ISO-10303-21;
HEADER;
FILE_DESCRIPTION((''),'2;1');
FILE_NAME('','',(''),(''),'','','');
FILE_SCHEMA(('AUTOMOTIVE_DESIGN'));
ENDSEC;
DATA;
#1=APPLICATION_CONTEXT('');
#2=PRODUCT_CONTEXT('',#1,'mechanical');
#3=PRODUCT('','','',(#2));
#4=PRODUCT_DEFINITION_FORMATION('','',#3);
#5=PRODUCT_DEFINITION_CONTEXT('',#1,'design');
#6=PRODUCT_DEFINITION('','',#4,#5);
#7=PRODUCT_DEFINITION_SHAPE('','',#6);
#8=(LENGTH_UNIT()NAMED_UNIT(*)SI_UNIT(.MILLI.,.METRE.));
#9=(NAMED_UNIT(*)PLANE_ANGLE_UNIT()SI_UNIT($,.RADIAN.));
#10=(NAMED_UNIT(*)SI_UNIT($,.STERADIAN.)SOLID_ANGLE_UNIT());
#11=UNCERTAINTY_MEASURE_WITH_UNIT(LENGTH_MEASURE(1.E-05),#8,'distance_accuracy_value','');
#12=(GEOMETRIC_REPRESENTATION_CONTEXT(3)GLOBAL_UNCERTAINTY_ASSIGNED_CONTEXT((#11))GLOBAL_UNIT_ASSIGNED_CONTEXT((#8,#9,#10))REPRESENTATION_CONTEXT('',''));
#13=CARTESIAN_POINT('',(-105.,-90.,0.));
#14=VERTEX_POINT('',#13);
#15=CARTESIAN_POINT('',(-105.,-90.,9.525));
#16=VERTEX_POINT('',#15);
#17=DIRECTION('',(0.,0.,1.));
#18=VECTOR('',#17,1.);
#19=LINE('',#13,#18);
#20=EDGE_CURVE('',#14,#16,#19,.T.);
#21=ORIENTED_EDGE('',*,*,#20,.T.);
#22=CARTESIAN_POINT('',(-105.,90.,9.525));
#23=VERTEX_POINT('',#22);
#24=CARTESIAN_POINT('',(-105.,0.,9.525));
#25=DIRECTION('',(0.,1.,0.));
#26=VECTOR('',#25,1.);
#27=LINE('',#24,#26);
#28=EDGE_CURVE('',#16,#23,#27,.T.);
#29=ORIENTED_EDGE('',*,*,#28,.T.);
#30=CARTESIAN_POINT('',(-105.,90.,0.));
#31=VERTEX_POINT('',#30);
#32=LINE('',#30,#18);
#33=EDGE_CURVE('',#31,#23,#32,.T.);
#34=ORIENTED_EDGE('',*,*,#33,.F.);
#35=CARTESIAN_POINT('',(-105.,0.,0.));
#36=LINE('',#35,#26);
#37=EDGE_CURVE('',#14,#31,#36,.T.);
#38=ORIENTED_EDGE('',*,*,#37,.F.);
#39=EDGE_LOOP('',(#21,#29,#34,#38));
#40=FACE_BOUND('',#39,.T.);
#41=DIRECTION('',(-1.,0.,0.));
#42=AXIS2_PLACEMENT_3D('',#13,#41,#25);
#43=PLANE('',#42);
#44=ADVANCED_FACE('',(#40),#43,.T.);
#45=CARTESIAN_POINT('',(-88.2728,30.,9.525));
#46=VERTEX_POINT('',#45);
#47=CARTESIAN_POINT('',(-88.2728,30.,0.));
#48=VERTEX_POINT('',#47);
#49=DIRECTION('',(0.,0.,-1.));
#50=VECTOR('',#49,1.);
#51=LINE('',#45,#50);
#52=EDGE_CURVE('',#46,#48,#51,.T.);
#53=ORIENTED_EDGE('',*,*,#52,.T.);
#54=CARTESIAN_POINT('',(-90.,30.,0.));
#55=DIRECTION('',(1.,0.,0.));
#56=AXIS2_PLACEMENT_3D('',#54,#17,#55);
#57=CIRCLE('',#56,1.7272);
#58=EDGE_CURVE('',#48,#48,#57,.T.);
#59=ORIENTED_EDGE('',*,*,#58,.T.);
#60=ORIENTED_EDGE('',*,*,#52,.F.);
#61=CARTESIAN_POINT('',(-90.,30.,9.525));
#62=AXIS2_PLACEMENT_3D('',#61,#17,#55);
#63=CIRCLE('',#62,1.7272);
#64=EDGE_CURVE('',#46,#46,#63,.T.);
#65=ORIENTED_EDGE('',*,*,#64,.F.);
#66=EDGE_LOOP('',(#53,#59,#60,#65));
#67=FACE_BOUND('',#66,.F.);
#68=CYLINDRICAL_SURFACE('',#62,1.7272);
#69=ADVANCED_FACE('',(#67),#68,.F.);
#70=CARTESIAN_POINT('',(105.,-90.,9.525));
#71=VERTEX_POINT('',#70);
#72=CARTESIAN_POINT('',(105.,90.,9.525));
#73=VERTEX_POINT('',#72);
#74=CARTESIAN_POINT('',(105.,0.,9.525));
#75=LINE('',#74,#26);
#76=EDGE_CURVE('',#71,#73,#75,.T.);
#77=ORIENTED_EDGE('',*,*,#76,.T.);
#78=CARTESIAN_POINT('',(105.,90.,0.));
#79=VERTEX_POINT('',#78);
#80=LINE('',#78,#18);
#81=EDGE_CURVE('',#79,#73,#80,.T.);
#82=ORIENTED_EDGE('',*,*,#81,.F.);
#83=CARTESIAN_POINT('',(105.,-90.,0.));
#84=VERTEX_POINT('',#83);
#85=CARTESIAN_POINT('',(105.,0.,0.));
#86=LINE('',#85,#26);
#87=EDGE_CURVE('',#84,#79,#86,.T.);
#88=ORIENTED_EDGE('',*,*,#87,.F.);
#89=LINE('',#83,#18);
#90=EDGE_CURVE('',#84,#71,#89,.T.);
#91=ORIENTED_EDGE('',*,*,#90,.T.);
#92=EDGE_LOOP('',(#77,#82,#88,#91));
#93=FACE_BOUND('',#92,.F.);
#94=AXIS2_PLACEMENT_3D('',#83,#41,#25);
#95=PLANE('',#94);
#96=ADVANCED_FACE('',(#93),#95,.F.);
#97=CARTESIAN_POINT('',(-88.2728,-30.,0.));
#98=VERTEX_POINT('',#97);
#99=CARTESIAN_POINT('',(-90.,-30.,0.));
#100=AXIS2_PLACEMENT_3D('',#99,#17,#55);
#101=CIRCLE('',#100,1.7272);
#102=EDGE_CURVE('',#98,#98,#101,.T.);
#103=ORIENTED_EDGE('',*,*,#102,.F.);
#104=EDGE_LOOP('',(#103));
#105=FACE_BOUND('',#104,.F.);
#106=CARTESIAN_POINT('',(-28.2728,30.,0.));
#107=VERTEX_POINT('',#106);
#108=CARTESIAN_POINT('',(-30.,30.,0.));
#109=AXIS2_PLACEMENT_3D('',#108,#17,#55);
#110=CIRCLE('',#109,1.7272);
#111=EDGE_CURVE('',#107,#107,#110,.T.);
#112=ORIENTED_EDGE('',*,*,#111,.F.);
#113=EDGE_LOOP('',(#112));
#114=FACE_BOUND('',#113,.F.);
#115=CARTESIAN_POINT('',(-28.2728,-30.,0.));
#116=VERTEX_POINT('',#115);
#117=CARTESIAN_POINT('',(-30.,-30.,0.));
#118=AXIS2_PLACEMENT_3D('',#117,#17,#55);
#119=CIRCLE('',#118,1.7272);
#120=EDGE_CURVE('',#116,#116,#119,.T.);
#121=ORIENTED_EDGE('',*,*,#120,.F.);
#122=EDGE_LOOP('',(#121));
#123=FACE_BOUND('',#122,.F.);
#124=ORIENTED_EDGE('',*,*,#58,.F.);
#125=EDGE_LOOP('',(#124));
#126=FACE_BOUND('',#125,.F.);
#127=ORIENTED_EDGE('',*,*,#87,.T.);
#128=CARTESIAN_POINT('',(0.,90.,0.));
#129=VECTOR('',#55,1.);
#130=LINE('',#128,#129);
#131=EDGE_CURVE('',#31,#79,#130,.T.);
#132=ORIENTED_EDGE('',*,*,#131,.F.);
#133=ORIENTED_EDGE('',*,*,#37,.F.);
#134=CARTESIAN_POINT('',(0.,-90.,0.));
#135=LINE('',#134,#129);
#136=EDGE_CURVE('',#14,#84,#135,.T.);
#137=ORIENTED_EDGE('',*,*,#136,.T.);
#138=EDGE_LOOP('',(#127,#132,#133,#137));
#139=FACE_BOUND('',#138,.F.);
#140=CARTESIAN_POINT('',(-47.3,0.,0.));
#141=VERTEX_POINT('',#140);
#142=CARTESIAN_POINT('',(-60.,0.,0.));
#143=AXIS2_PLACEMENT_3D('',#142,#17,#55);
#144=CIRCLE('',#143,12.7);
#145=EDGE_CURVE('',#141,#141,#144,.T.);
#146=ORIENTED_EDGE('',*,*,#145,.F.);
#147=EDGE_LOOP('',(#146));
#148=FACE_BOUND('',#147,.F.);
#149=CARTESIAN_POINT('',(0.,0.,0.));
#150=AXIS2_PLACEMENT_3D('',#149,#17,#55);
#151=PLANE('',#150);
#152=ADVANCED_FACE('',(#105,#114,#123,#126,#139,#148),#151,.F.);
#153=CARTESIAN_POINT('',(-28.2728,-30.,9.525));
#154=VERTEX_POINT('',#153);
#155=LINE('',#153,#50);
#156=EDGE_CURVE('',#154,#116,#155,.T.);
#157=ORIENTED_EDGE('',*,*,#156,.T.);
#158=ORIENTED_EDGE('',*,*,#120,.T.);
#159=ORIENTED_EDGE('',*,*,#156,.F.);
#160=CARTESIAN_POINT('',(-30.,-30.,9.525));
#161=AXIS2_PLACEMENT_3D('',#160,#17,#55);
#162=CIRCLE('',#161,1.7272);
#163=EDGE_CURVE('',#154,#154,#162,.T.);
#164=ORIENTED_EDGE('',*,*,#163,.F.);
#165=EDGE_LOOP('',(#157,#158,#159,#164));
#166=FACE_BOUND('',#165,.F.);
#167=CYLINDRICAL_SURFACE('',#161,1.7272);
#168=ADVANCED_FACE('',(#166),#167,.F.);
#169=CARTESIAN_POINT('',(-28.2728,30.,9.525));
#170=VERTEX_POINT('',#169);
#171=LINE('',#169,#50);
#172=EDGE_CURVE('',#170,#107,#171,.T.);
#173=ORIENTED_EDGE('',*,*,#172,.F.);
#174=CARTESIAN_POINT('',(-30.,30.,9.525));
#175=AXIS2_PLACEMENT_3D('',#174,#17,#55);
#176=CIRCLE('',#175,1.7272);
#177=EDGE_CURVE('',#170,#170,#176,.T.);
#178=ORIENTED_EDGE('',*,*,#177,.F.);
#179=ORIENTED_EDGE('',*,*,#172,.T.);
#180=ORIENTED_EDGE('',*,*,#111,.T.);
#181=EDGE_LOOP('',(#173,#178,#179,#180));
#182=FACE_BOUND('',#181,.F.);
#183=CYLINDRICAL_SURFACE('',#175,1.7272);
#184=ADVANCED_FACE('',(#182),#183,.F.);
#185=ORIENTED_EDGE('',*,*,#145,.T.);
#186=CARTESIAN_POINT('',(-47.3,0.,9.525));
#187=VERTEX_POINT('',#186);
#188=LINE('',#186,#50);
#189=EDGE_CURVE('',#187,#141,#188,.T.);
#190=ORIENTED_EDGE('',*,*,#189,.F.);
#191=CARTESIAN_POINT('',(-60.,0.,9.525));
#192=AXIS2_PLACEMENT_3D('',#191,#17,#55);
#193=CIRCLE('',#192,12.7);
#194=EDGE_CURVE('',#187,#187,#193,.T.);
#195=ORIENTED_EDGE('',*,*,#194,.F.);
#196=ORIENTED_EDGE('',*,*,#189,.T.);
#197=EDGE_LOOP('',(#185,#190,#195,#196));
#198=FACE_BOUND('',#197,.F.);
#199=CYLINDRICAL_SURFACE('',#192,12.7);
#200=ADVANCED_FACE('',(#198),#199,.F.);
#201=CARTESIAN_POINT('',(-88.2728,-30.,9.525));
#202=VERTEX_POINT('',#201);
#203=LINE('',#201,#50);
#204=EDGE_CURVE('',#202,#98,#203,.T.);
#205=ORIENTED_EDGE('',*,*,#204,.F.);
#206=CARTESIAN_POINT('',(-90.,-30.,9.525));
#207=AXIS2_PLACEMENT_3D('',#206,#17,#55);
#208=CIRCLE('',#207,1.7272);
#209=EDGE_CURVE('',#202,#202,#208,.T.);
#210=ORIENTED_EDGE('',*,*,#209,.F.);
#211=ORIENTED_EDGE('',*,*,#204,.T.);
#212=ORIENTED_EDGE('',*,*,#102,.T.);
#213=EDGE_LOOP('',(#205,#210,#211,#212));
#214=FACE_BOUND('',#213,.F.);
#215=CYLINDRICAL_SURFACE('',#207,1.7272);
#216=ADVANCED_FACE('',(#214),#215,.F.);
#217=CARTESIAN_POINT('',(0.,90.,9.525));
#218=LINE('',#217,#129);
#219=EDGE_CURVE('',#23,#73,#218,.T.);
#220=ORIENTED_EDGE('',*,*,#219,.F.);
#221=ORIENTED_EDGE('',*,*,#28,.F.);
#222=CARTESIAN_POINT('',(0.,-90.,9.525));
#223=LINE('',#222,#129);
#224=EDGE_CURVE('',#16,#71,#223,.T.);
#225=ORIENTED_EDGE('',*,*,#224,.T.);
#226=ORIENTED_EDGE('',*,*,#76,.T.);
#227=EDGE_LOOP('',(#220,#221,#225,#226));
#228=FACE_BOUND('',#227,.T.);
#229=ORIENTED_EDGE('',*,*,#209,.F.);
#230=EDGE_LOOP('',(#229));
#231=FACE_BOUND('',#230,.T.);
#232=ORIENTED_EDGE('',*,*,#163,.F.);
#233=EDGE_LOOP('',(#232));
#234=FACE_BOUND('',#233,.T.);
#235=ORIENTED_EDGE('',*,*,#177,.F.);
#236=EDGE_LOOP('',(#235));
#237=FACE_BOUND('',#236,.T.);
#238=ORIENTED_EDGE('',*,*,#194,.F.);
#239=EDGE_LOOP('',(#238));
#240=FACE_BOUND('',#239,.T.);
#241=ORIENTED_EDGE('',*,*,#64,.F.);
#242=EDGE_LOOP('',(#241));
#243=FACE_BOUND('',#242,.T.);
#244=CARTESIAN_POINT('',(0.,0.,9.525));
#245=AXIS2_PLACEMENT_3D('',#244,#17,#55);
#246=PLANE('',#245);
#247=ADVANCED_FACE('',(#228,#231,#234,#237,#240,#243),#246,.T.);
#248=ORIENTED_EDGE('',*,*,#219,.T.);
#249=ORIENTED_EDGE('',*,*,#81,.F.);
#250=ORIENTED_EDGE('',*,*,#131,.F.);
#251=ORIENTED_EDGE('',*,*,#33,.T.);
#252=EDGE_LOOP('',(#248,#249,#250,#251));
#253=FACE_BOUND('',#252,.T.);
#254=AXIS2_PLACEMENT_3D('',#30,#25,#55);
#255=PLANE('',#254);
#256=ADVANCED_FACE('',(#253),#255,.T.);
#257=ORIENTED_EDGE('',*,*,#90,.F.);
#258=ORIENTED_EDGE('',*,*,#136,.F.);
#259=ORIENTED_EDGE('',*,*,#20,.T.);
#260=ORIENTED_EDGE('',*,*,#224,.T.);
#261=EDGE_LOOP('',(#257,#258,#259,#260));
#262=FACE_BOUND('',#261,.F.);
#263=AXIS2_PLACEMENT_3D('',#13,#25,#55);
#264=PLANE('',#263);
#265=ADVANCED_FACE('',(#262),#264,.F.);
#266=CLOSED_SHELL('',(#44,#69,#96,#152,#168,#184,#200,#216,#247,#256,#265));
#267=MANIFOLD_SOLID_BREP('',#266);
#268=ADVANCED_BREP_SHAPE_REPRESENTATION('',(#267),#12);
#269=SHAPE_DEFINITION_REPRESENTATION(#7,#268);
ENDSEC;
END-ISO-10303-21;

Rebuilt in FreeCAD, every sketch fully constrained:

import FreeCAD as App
import Part
import Sketcher
from FreeCAD import Vector
Q = App.Units.Quantity

doc = App.newDocument("Part")
body = doc.addObject("PartDesign::Body", "Body")

sketch1 = body.newObject("Sketcher::SketchObject", "Sketch")
sketch1.AttachmentSupport = (doc.getObject("XY_Plane"), [""])
sketch1.MapMode = "FlatFace"
sketch1.addGeometry(Part.LineSegment(Vector(-105, 90, 0), Vector(-105, -90, 0)), False)
sketch1.addGeometry(Part.LineSegment(Vector(-105, -90, 0), Vector(105, -90, 0)), False)
sketch1.addGeometry(Part.LineSegment(Vector(105, -90, 0), Vector(105, 90, 0)), False)
sketch1.addGeometry(Part.LineSegment(Vector(105, 90, 0), Vector(-105, 90, 0)), False)
sketch1.addConstraint(Sketcher.Constraint("Coincident", 0, 2, 1, 1))
sketch1.addConstraint(Sketcher.Constraint("Coincident", 1, 2, 2, 1))
sketch1.addConstraint(Sketcher.Constraint("Coincident", 2, 2, 3, 1))
sketch1.addConstraint(Sketcher.Constraint("Coincident", 3, 2, 0, 1))
sketch1.addConstraint(Sketcher.Constraint("Vertical", 0))
sketch1.addConstraint(Sketcher.Constraint("Horizontal", 1))
sketch1.addConstraint(Sketcher.Constraint("Vertical", 2))
sketch1.addConstraint(Sketcher.Constraint("Horizontal", 3))
sketch1.addConstraint(Sketcher.Constraint("Symmetric", 0, 2, 2, 2, -1, 1))
sketch1.addConstraint(Sketcher.Constraint("DistanceX", 1, 1, 1, 2, Q("210 mm")))
sketch1.addConstraint(Sketcher.Constraint("DistanceY", 0, 2, 0, 1, Q("180 mm")))
pad1 = body.newObject("PartDesign::Pad", "Pad")
pad1.Profile = sketch1
pad1.Length = Q("0.375 in")

sketch2 = body.newObject("Sketcher::SketchObject", "Sketch001")
sketch2.AttachmentSupport = (doc.getObject("XY_Plane"), [""])
sketch2.MapMode = "FlatFace"
sketch2.AttachmentOffset = App.Placement(Vector(0, 0, 0.375 * 25.4), App.Rotation())
sketch2.addGeometry(Part.Circle(Vector(-60, 0, 0), Vector(0, 0, 1), 12.7), False)
sketch2.addGeometry(Part.Circle(Vector(-30, 30, 0), Vector(0, 0, 1), 1.7), False)
sketch2.addGeometry(Part.Circle(Vector(-30, -30, 0), Vector(0, 0, 1), 1.7), False)
sketch2.addGeometry(Part.Circle(Vector(-90, -30, 0), Vector(0, 0, 1), 1.7), False)
sketch2.addGeometry(Part.Circle(Vector(-90, 30, 0), Vector(0, 0, 1), 1.7), False)
sketch2.addConstraint(Sketcher.Constraint("Equal", 1, 2))
sketch2.addConstraint(Sketcher.Constraint("Equal", 2, 3))
sketch2.addConstraint(Sketcher.Constraint("Equal", 3, 4))
sketch2.addConstraint(Sketcher.Constraint("Symmetric", 1, 3, 2, 3, -1))
sketch2.addConstraint(Sketcher.Constraint("Symmetric", 3, 3, 4, 3, -1))
sketch2.addConstraint(Sketcher.Constraint("PointOnObject", 0, 3, -1))
sketch2.addConstraint(Sketcher.Constraint("Horizontal", 2, 3, 3, 3))
sketch2.addConstraint(Sketcher.Constraint("Diameter", 0, Q("1 in")))
sketch2.addConstraint(Sketcher.Constraint("Diameter", 1, Q("0.136 in")))
sketch2.addConstraint(Sketcher.Constraint("DistanceX", 0, 3, -1, 1, Q("60 mm")))
sketch2.addConstraint(Sketcher.Constraint("DistanceX", 1, 3, -1, 1, Q("30 mm")))
sketch2.addConstraint(Sketcher.Constraint("DistanceY", -1, 1, 1, 3, Q("30 mm")))
sketch2.addConstraint(Sketcher.Constraint("DistanceX", 3, 3, -1, 1, Q("90 mm")))
pocket1 = body.newObject("PartDesign::Pocket", "Pocket")
pocket1.Profile = sketch2
pocket1.Type = "ThroughAll"

doc.recompute()
